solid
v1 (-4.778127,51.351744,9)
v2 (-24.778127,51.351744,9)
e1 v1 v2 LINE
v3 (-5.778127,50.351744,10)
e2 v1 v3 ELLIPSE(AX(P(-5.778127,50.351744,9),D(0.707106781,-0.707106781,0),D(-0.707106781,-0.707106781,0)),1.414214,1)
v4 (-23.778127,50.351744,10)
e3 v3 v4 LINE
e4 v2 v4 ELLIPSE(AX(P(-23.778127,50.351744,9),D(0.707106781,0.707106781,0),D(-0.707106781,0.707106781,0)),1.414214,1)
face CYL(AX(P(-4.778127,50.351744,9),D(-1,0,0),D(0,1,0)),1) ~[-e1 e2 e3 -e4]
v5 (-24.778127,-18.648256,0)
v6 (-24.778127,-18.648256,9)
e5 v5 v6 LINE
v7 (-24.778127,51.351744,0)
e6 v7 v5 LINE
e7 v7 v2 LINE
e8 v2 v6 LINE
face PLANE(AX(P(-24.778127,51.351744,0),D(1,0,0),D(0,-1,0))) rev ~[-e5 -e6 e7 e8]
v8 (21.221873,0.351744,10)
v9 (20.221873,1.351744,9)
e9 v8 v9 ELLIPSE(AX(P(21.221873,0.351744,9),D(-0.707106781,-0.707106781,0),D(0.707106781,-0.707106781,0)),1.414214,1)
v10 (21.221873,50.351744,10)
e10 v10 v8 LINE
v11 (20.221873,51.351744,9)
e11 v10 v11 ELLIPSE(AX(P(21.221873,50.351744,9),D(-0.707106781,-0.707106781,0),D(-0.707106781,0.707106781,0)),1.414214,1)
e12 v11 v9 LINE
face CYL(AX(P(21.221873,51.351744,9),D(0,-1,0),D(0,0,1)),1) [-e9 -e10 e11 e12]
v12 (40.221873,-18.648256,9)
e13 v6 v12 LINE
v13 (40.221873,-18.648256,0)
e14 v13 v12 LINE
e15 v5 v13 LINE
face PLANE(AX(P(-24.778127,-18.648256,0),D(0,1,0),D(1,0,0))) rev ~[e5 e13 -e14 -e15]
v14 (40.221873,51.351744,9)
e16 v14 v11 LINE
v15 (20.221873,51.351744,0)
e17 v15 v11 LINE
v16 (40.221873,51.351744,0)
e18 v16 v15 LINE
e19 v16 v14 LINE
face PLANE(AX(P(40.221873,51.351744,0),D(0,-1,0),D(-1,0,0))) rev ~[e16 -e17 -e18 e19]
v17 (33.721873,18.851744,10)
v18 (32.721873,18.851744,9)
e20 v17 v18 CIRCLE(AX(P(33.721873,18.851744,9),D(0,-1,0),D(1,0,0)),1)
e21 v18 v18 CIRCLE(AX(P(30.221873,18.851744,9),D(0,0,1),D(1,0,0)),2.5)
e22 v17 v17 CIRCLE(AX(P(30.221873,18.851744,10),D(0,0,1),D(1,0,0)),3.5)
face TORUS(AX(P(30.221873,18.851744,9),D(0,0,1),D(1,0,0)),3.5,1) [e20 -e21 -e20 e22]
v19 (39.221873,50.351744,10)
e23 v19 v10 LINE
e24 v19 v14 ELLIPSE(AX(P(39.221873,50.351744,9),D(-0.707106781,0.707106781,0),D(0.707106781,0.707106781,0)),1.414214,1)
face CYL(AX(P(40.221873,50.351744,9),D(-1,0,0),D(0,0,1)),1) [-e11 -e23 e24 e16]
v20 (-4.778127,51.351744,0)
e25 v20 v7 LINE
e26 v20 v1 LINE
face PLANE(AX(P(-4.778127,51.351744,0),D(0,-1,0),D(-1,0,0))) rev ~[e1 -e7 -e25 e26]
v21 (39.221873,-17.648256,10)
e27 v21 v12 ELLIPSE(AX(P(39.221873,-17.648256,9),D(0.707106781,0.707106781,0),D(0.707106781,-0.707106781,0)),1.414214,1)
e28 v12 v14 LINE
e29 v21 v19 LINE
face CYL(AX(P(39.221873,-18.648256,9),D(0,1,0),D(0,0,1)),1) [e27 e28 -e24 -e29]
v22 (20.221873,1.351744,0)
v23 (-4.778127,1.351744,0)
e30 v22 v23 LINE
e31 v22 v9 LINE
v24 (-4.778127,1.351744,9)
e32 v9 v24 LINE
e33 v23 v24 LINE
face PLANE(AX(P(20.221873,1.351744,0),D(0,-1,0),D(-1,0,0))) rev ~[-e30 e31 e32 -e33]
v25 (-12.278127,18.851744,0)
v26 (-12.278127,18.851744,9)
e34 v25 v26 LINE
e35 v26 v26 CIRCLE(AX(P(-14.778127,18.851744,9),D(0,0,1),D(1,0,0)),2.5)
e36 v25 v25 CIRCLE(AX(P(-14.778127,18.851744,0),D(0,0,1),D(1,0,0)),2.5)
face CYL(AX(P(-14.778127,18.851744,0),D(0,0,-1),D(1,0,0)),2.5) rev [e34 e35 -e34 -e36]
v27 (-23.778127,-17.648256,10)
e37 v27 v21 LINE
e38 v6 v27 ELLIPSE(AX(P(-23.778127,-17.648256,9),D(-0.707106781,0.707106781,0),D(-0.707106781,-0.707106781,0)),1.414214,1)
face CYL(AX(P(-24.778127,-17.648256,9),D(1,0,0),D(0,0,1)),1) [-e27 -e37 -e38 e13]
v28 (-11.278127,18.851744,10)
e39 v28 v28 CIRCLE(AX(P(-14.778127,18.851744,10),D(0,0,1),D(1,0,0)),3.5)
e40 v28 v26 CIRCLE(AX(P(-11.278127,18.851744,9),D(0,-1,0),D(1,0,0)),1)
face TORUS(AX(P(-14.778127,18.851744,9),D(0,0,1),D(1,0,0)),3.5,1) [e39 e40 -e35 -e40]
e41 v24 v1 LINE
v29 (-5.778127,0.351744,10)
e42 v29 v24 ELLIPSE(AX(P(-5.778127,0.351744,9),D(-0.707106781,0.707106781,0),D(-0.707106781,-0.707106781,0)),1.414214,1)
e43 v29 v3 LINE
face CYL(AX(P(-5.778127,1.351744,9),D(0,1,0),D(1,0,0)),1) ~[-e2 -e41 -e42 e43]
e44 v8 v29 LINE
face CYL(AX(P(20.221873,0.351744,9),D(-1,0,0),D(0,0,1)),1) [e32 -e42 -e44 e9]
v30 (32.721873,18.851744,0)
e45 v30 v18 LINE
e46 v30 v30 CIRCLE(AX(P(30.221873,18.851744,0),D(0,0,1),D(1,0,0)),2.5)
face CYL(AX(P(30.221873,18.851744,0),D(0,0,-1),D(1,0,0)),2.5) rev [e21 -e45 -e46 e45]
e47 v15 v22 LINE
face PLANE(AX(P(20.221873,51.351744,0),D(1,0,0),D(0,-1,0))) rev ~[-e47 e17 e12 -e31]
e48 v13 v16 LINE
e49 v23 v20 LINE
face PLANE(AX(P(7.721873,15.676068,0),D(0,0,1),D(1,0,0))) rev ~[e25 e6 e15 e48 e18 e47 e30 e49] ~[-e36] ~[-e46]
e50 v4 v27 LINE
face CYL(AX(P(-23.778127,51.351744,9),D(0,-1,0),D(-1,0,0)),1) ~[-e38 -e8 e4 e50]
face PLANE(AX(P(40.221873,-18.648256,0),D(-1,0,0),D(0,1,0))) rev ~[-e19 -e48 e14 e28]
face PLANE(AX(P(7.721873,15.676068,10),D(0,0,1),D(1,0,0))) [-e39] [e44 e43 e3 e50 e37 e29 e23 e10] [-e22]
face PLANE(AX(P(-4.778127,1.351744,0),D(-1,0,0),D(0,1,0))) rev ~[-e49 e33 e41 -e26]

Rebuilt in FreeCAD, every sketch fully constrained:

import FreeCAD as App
import Part
import Sketcher
from FreeCAD import Vector


def edges_at(feature, points):
    """Names of the edges that pass closest to the given points."""
    edges = feature.Shape.Edges
    near = lambda p: min(range(len(edges)), key=lambda i: edges[i].distToShape(Part.Vertex(*p))[0])
    return sorted({f"Edge{near(p) + 1}" for p in points})


def add_polygon(sketch, points):
    """Adds a closed chain of lines whose ends are joined by coincident constraints."""
    first, n = sketch.GeometryCount, len(points)
    for a, b in zip(points, points[1:] + points[:1]):
        sketch.addGeometry(Part.LineSegment(App.Vector(*a, 0), App.Vector(*b, 0)), False)
    for i in range(n):
        sketch.addConstraint(Sketcher.Constraint("Coincident", first + i, 2, first + (i + 1) % n, 1))

doc = App.newDocument("Part")
body = doc.addObject("PartDesign::Body", "Body")

# Sketch on XY plane
sketch1 = body.newObject("Sketcher::SketchObject", "Sketch")
sketch1.AttachmentSupport = (doc.getObject("XY_Plane"), [""])
sketch1.MapMode = "FlatFace"
add_polygon(sketch1, [(-4.8, 51.4), (-24.8, 51.4), (-24.8, -18.6), (40.2, -18.6), (40.2, 51.4), (20.2, 51.4), (20.2, 1.4), (-4.8, 1.4)])  # lines 0-7
sketch1.addGeometry(Part.Circle(Vector(-14.8, 18.9, 0), Vector(0, 0, 1), 2.5), False)  # 8
sketch1.addGeometry(Part.Circle(Vector(30.2, 18.9, 0), Vector(0, 0, 1), 2.5), False)  # 9
sketch1.addConstraint(Sketcher.Constraint("Horizontal", 0))
sketch1.addConstraint(Sketcher.Constraint("Vertical", 1))
sketch1.addConstraint(Sketcher.Constraint("Horizontal", 2))
sketch1.addConstraint(Sketcher.Constraint("Vertical", 3))
sketch1.addConstraint(Sketcher.Constraint("Horizontal", 4))
sketch1.addConstraint(Sketcher.Constraint("Vertical", 5))
sketch1.addConstraint(Sketcher.Constraint("Horizontal", 6))
sketch1.addConstraint(Sketcher.Constraint("Vertical", 7))
sketch1.addConstraint(Sketcher.Constraint("Equal", 8, 9))
sketch1.addConstraint(Sketcher.Constraint("Horizontal", 8, 3, 9, 3))
sketch1.addConstraint(Sketcher.Constraint("Horizontal", 0, 2, 3, 2))
sketch1.addConstraint(Sketcher.Constraint("Equal", 0, 4))
sketch1.addConstraint(Sketcher.Constraint("Diameter", 8, 5.0))
sketch1.addConstraint(Sketcher.Constraint("DistanceX", 0, 2, 0, 1, 20.0))
sketch1.addConstraint(Sketcher.Constraint("DistanceX", 2, 1, 2, 2, 65.0))
sketch1.addConstraint(Sketcher.Constraint("DistanceY", 1, 2, 1, 1, 70.0))
sketch1.addConstraint(Sketcher.Constraint("DistanceY", 5, 2, 5, 1, 50.0))
sketch1.addConstraint(Sketcher.Constraint("DistanceX", 8, 3, 9, 3, 45.0))
sketch1.addConstraint(Sketcher.Constraint("DistanceX", 0, 2, 8, 3, 10.0))
sketch1.addConstraint(Sketcher.Constraint("DistanceY", 8, 3, 0, 2, 32.5))
sketch1.addConstraint(Sketcher.Constraint("DistanceX", 8, 3, -1, 1, 14.778127))
sketch1.addConstraint(Sketcher.Constraint("DistanceY", -1, 1, 8, 3, 18.851744))
pad1 = body.newObject("PartDesign::Pad", "Pad")
pad1.Profile = sketch1
pad1.Length = 10

# Sketch on XY plane
sketch2 = body.newObject("Sketcher::SketchObject", "Sketch001")
sketch2.AttachmentSupport = (doc.getObject("XY_Plane"), [""])
sketch2.MapMode = "FlatFace"
add_polygon(sketch2, [(-4.8, 51.4), (-24.8, 51.4), (-24.8, -18.6), (40.2, -18.6), (40.2, 51.4), (20.2, 51.4), (20.2, 1.4), (-4.8, 1.4)])  # lines 0-7
sketch2.addGeometry(Part.Circle(Vector(-14.8, 18.9, 0), Vector(0, 0, 1), 2.5), False)  # 8
sketch2.addGeometry(Part.Circle(Vector(30.2, 18.9, 0), Vector(0, 0, 1), 2.5), False)  # 9
sketch2.addConstraint(Sketcher.Constraint("Horizontal", 0))
sketch2.addConstraint(Sketcher.Constraint("Vertical", 1))
sketch2.addConstraint(Sketcher.Constraint("Horizontal", 2))
sketch2.addConstraint(Sketcher.Constraint("Vertical", 3))
sketch2.addConstraint(Sketcher.Constraint("Horizontal", 4))
sketch2.addConstraint(Sketcher.Constraint("Vertical", 5))
sketch2.addConstraint(Sketcher.Constraint("Horizontal", 6))
sketch2.addConstraint(Sketcher.Constraint("Vertical", 7))
sketch2.addConstraint(Sketcher.Constraint("Equal", 8, 9))
sketch2.addConstraint(Sketcher.Constraint("Horizontal", 8, 3, 9, 3))
sketch2.addConstraint(Sketcher.Constraint("Horizontal", 0, 2, 3, 2))
sketch2.addConstraint(Sketcher.Constraint("Equal", 0, 4))
sketch2.addConstraint(Sketcher.Constraint("Diameter", 8, 5.0))
sketch2.addConstraint(Sketcher.Constraint("DistanceX", 0, 2, 0, 1, 20.0))
sketch2.addConstraint(Sketcher.Constraint("DistanceX", 2, 1, 2, 2, 65.0))
sketch2.addConstraint(Sketcher.Constraint("DistanceY", 1, 2, 1, 1, 70.0))
sketch2.addConstraint(Sketcher.Constraint("DistanceY", 5, 2, 5, 1, 50.0))
sketch2.addConstraint(Sketcher.Constraint("DistanceX", 8, 3, 9, 3, 45.0))
sketch2.addConstraint(Sketcher.Constraint("DistanceX", 0, 2, 8, 3, 10.0))
sketch2.addConstraint(Sketcher.Constraint("DistanceY", 8, 3, 0, 2, 32.5))
sketch2.addConstraint(Sketcher.Constraint("DistanceX", 8, 3, -1, 1, 14.778127))
sketch2.addConstraint(Sketcher.Constraint("DistanceY", -1, 1, 8, 3, 18.851744))
pad2 = body.newObject("PartDesign::Pad", "Pad001")
pad2.Profile = sketch2
pad2.Length = 10
doc.recompute()

fillet = body.newObject("PartDesign::Fillet", "Fillet")
fillet.Base = (pad2, edges_at(pad2, [
    (-14.778, 51.352, 10),
    (-24.778, 16.352, 10),
    (7.722, -18.648, 10),
    (40.222, 16.352, 10),
    (30.222, 51.352, 10),
    (20.222, 26.352, 10),
    (7.722, 1.352, 10),
    (-4.778, 26.352, 10),
    (-17.278, 18.852, 10),
    (27.722, 18.852, 10),
]))
fillet.Radius = 1

doc.recompute()
